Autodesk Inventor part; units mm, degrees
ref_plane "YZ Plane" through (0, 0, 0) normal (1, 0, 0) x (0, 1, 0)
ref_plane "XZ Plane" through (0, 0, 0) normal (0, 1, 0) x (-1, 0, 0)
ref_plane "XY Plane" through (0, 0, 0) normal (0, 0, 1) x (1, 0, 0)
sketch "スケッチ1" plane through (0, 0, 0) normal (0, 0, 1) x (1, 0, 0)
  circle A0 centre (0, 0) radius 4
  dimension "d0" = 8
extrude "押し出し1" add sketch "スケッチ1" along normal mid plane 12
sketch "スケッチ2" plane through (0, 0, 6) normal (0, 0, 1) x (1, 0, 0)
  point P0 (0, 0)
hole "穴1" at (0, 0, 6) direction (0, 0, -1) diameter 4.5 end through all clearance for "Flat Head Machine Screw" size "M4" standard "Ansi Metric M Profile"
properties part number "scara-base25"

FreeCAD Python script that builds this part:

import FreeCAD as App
import Part
import Sketcher
from FreeCAD import Vector

doc = App.newDocument("Part")
params = doc.addObject("Spreadsheet::Sheet", "Params")
for row, (alias, value) in enumerate([
    ("sketch1_diameter", "8 mm"),
    ("pad1_length", "12 mm"),
    ("sketch2_diameter", "4.5 mm"),
    ("hole_diameter", "4.5 mm"),
], start=1):
    params.set(f"A{row}", alias)
    params.set(f"B{row}", "=" + value)
    params.setAlias(f"B{row}", alias)

body = doc.addObject("PartDesign::Body", "Body")

sketch1 = body.newObject("Sketcher::SketchObject", "Sketch")
sketch1.AttachmentSupport = (doc.getObject("XY_Plane"), [""])
sketch1.MapMode = "FlatFace"
sketch1.addGeometry(Part.Circle(Vector(0, 0, 0), Vector(0, 0, 1), 4), False)
sketch1.addConstraint([
    Sketcher.Constraint("Coincident", 0, 3, -1, 1),
    Sketcher.Constraint("Diameter", 0, 8.0),
])
sketch1.setExpression("Constraints[1]", "Params.sketch1_diameter")
pad1 = body.newObject("PartDesign::Pad", "Pad")
pad1.Profile = sketch1
pad1.setExpression("Length", "Params.pad1_length")
pad1.Midplane = True

sketch2 = body.newObject("Sketcher::SketchObject", "Sketch001")
sketch2.AttachmentSupport = (doc.getObject("XY_Plane"), [""])
sketch2.MapMode = "FlatFace"
sketch2.AttachmentOffset = App.Placement(Vector(0, 0, 6), App.Rotation())
sketch2.addGeometry(Part.Circle(Vector(0, 0, 0), Vector(0, 0, 1), 2.2), False)
sketch2.addConstraint([
    Sketcher.Constraint("Coincident", 0, 3, -1, 1),
    Sketcher.Constraint("Diameter", 0, 4.5),
])
sketch2.setExpression("Constraints[1]", "Params.sketch2_diameter")
doc.recompute()
hole = body.newObject("PartDesign::Hole", "Hole")
hole.Profile = sketch2
hole.ThreadType = "None"
hole.setExpression("Diameter", "Params.hole_diameter")
hole.DepthType = "ThroughAll"

doc.recompute()
